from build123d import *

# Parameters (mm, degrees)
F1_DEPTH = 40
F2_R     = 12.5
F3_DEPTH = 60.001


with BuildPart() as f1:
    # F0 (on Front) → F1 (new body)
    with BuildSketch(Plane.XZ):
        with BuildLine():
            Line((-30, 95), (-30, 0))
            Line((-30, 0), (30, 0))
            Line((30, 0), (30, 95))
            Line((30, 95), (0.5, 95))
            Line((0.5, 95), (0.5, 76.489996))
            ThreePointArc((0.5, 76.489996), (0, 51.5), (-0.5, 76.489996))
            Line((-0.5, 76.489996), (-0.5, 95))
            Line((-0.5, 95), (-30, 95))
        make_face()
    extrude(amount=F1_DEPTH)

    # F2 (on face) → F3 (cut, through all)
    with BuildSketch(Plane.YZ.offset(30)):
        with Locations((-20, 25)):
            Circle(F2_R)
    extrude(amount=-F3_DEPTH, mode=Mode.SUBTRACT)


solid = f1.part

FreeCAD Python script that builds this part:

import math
import FreeCAD as App
import Part
import Sketcher
Q = App.Units.Quantity

doc = App.newDocument("Part")
body = doc.addObject("PartDesign::Body", "Body")

sketch1 = body.newObject("Sketcher::SketchObject", "Sketch")
sketch1.AttachmentSupport = (doc.getObject("XZ_Plane"), [""])
sketch1.MapMode = "FlatFace"
sketch1.addGeometry(Part.LineSegment(App.Vector(-30, 95, 0), App.Vector(-30, 0, 0)), False)
sketch1.addGeometry(Part.LineSegment(App.Vector(-30, 0, 0), App.Vector(30, 0, 0)), False)
sketch1.addGeometry(Part.LineSegment(App.Vector(30, 0, 0), App.Vector(30, 95, 0)), False)
sketch1.addGeometry(Part.LineSegment(App.Vector(30, 95, 0), App.Vector(0.5, 95, 0)), False)
sketch1.addGeometry(Part.LineSegment(App.Vector(0.5, 95, 0), App.Vector(0.5, 76.5, 0)), False)
sketch1.addGeometry(Part.ArcOfCircle(Part.Circle(App.Vector(0, 64, 0), App.Vector(0, 0, 1), 12.5), math.radians(92), math.radians(448)), False)
sketch1.addGeometry(Part.LineSegment(App.Vector(-0.5, 76.5, 0), App.Vector(-0.5, 95, 0)), False)
sketch1.addGeometry(Part.LineSegment(App.Vector(-0.5, 95, 0), App.Vector(-30, 95, 0)), False)
sketch1.addConstraint(Sketcher.Constraint("Coincident", 0, 2, 1, 1))
sketch1.addConstraint(Sketcher.Constraint("Coincident", 1, 2, 2, 1))
sketch1.addConstraint(Sketcher.Constraint("Coincident", 2, 2, 3, 1))
sketch1.addConstraint(Sketcher.Constraint("Coincident", 3, 2, 4, 1))
sketch1.addConstraint(Sketcher.Constraint("Coincident", 4, 2, 5, 2))
sketch1.addConstraint(Sketcher.Constraint("Coincident", 5, 1, 6, 1))
sketch1.addConstraint(Sketcher.Constraint("Coincident", 6, 2, 7, 1))
sketch1.addConstraint(Sketcher.Constraint("Coincident", 7, 2, 0, 1))
sketch1.addConstraint(Sketcher.Constraint("Vertical", 0))
sketch1.addConstraint(Sketcher.Constraint("Horizontal", 1))
sketch1.addConstraint(Sketcher.Constraint("Vertical", 2))
sketch1.addConstraint(Sketcher.Constraint("Horizontal", 3))
sketch1.addConstraint(Sketcher.Constraint("Vertical", 4))
sketch1.addConstraint(Sketcher.Constraint("Vertical", 6))
sketch1.addConstraint(Sketcher.Constraint("Horizontal", 7))
sketch1.addConstraint(Sketcher.Constraint("Symmetric", 0, 2, 1, 2, -1, 1))
sketch1.addConstraint(Sketcher.Constraint("Symmetric", 4, 2, 5, 1, -2))
sketch1.addConstraint(Sketcher.Constraint("Horizontal", 3, 2, 6, 2))
sketch1.addConstraint(Sketcher.Constraint("Radius", 5, Q("12.5 mm")))
sketch1.addConstraint(Sketcher.Constraint("DistanceX", 1, 1, 1, 2, Q("60 mm")))
sketch1.addConstraint(Sketcher.Constraint("DistanceY", 0, 2, 0, 1, Q("95 mm")))
sketch1.addConstraint(Sketcher.Constraint("DistanceX", 3, 2, 3, 1, Q("29.5 mm")))
sketch1.addConstraint(Sketcher.Constraint("DistanceY", -1, 1, 5, 3, Q("64 mm")))
pad1 = body.newObject("PartDesign::Pad", "Pad")
pad1.Profile = sketch1
pad1.Length = 40

sketch2 = body.newObject("Sketcher::SketchObject", "Sketch001")
sketch2.AttachmentSupport = (doc.getObject("YZ_Plane"), [""])
sketch2.MapMode = "FlatFace"
sketch2.AttachmentOffset = App.Placement(App.Vector(0, 0, 30), App.Rotation())
sketch2.addGeometry(Part.Circle(App.Vector(-20, 25, 0), App.Vector(0, 0, 1), 12), False)
sketch2.addConstraint(Sketcher.Constraint("Diameter", 0, Q("25 mm")))
sketch2.addConstraint(Sketcher.Constraint("DistanceX", 0, 3, -1, 1, Q("20 mm")))
sketch2.addConstraint(Sketcher.Constraint("DistanceY", -1, 1, 0, 3, Q("25 mm")))
pocket1 = body.newObject("PartDesign::Pocket", "Pocket")
pocket1.Profile = sketch2
pocket1.Type = "ThroughAll"

doc.recompute()
